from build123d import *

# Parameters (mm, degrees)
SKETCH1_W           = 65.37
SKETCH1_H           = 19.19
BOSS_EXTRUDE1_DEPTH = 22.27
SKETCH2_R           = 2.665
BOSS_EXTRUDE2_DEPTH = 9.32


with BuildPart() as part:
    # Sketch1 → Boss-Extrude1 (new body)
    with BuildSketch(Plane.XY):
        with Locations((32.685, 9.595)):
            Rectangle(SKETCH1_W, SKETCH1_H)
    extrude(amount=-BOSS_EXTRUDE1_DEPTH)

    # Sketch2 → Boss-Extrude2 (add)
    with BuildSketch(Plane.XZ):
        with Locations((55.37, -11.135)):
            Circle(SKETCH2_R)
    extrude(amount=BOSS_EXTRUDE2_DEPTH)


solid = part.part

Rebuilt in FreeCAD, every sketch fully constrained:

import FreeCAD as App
import Part
import Sketcher


def add_polygon(sketch, points):
    """Adds a closed chain of lines whose ends are joined by coincident constraints."""
    first, n = sketch.GeometryCount, len(points)
    for a, b in zip(points, points[1:] + points[:1]):
        sketch.addGeometry(Part.LineSegment(App.Vector(*a, 0), App.Vector(*b, 0)), False)
    for i in range(n):
        sketch.addConstraint(Sketcher.Constraint("Coincident", first + i, 2, first + (i + 1) % n, 1))

doc = App.newDocument("Part")
body = doc.addObject("PartDesign::Body", "Body")

# Sketch on XY plane
sketch1 = body.newObject("Sketcher::SketchObject", "Sketch")
sketch1.AttachmentSupport = (doc.getObject("XY_Plane"), [""])
sketch1.MapMode = "FlatFace"
add_polygon(sketch1, [(0, 19), (0, 0), (65, 0), (65, 19)])  # lines 0-3
sketch1.addConstraint(Sketcher.Constraint("Vertical", 0))
sketch1.addConstraint(Sketcher.Constraint("Horizontal", 1))
sketch1.addConstraint(Sketcher.Constraint("Vertical", 2))
sketch1.addConstraint(Sketcher.Constraint("Horizontal", 3))
sketch1.addConstraint(Sketcher.Constraint("Coincident", 0, 2, -1, 1))
sketch1.addConstraint(Sketcher.Constraint("DistanceX", 1, 1, 1, 2, 65.37))
sketch1.addConstraint(Sketcher.Constraint("DistanceY", 0, 2, 0, 1, 19.19))
pad1 = body.newObject("PartDesign::Pad", "Pad")
pad1.Profile = sketch1
pad1.Length = 22.27
pad1.Reversed = True

# Sketch on XZ plane
sketch2 = body.newObject("Sketcher::SketchObject", "Sketch001")
sketch2.AttachmentSupport = (doc.getObject("XZ_Plane"), [""])
sketch2.MapMode = "FlatFace"
sketch2.addGeometry(Part.Circle(App.Vector(55.4, -11.1, 0), App.Vector(0, 0, 1), 2.7), False)
sketch2.addConstraint(Sketcher.Constraint("Diameter", 0, 5.33))
sketch2.addConstraint(Sketcher.Constraint("DistanceX", -1, 1, 0, 3, 55.37))
sketch2.addConstraint(Sketcher.Constraint("DistanceY", 0, 3, -1, 1, 11.135))
pad2 = body.newObject("PartDesign::Pad", "Pad001")
pad2.Profile = sketch2
pad2.Length = 9.32

doc.recompute()
